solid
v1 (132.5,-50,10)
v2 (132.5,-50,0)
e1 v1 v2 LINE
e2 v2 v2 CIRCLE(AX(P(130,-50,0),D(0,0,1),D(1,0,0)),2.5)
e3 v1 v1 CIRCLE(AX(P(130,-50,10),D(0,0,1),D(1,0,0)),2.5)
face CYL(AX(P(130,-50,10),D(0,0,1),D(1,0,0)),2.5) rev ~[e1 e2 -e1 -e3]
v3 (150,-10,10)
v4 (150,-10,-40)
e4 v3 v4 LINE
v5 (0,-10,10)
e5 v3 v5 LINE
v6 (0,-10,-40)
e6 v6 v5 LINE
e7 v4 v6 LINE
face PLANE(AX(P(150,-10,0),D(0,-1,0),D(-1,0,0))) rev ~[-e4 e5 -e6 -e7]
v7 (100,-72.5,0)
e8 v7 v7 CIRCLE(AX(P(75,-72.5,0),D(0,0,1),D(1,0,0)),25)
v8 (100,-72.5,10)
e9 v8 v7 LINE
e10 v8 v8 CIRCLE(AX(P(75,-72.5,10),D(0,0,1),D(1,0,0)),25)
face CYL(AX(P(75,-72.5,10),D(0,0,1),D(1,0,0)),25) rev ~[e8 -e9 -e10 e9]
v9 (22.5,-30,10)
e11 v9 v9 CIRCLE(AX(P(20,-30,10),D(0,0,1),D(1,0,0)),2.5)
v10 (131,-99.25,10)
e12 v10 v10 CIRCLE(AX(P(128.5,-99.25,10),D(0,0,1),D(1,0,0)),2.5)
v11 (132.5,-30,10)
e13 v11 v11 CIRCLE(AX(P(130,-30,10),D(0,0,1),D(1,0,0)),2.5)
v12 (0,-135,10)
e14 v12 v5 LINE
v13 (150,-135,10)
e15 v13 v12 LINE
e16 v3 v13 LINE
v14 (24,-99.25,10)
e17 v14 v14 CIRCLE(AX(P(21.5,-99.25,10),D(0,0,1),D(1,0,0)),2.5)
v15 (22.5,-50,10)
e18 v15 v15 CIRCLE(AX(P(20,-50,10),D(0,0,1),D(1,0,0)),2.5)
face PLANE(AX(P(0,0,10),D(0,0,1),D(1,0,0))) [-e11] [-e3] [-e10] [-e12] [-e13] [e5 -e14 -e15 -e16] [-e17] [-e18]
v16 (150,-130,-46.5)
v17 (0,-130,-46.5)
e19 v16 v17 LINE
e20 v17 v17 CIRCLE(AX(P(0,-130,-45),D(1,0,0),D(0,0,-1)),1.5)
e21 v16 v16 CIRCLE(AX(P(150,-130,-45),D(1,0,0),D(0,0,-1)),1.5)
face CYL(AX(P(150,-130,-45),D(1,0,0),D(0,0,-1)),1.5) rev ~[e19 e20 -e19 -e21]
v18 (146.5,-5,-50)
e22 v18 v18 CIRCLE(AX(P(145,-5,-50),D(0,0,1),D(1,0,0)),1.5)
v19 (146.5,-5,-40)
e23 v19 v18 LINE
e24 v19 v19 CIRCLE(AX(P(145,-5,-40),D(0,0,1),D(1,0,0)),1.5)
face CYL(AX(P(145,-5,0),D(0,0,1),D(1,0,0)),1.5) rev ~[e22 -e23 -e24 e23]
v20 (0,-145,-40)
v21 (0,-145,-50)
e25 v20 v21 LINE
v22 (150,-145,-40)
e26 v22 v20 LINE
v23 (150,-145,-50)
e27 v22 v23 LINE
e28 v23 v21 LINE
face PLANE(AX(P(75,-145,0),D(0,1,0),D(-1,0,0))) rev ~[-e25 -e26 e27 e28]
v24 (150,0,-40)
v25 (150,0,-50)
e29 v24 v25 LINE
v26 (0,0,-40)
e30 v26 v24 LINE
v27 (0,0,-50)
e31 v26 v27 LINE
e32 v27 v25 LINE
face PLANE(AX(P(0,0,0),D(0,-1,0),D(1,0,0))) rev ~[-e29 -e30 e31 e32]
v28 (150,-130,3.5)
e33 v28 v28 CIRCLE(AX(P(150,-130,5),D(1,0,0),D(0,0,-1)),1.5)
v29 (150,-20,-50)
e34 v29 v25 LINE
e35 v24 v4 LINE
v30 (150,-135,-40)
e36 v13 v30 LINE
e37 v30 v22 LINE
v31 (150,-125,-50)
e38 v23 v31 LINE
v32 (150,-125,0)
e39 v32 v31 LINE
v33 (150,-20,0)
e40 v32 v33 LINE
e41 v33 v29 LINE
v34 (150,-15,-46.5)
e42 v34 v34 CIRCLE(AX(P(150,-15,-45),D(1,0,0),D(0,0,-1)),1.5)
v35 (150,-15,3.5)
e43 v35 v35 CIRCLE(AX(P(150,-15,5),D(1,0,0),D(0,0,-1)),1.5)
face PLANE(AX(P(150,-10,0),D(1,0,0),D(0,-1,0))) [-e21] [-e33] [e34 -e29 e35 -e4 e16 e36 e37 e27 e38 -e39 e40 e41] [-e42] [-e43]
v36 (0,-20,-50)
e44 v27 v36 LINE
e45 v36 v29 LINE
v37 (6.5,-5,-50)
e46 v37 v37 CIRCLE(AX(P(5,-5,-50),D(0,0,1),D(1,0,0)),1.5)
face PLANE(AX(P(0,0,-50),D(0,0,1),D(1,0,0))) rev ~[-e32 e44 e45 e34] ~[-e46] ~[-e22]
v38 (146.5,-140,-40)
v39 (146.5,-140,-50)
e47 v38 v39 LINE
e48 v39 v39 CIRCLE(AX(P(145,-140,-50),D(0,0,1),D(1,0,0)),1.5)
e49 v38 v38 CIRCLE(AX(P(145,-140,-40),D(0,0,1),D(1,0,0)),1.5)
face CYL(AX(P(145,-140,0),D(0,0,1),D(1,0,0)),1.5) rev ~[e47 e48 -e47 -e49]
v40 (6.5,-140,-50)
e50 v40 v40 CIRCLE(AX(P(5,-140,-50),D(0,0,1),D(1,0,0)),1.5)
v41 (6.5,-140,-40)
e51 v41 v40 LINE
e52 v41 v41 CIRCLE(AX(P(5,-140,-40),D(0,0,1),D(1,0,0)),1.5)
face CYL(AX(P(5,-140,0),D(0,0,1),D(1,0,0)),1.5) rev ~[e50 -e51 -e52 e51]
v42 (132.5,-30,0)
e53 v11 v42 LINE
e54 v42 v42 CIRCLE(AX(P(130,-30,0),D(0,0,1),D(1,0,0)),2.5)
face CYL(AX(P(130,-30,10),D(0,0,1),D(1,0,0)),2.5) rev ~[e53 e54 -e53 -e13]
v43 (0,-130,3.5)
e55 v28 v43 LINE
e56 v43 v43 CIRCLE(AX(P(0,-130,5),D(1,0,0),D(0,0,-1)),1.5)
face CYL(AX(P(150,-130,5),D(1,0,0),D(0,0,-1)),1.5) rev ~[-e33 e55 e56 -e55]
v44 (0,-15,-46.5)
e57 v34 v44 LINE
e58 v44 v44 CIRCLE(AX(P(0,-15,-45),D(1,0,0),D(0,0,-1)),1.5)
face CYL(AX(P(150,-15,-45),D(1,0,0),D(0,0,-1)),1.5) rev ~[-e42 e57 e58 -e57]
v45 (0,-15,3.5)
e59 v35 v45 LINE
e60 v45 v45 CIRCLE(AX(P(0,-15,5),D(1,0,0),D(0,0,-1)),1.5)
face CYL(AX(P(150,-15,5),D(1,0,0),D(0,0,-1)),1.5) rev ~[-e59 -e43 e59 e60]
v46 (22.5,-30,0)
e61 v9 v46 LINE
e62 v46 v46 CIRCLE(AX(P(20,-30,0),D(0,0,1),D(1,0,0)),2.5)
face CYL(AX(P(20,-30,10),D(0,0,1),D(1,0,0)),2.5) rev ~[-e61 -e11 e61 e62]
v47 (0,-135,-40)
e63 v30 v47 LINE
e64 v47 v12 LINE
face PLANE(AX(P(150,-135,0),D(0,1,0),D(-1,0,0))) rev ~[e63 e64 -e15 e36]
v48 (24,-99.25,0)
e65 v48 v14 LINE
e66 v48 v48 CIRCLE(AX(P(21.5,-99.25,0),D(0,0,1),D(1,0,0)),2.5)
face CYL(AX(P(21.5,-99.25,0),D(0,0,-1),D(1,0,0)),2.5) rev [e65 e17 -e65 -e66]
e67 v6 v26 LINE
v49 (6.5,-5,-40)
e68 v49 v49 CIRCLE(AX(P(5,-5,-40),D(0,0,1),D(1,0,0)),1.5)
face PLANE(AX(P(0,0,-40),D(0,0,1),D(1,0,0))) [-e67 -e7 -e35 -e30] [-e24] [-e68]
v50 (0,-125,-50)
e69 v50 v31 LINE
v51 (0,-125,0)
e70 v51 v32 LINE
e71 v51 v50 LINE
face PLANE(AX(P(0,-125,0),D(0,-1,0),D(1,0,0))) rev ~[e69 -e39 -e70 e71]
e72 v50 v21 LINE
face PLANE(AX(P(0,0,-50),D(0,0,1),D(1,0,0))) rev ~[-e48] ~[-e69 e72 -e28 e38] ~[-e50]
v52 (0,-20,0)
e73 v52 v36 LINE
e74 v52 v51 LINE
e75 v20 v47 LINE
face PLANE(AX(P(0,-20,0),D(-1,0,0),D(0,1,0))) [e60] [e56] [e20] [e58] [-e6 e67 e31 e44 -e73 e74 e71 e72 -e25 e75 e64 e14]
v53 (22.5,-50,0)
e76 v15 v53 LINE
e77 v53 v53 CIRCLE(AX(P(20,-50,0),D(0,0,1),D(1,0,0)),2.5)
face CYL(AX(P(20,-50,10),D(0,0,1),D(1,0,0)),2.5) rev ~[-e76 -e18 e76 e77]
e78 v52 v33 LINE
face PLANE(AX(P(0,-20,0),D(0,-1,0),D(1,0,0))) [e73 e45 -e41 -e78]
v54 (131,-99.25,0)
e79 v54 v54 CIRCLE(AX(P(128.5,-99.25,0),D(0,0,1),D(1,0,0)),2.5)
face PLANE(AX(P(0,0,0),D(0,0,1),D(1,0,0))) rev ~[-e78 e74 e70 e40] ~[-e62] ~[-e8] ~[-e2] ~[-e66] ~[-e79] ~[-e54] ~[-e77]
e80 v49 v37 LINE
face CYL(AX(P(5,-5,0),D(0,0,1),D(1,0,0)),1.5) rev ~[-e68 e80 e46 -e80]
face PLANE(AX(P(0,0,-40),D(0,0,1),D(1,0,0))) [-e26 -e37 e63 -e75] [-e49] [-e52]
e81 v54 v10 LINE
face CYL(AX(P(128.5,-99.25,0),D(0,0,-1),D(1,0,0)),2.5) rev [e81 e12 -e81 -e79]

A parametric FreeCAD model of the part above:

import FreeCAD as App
import Part
import Sketcher
from FreeCAD import Vector


def add_polygon(sketch, points):
    """Adds a closed chain of lines whose ends are joined by coincident constraints."""
    first, n = sketch.GeometryCount, len(points)
    for a, b in zip(points, points[1:] + points[:1]):
        sketch.addGeometry(Part.LineSegment(App.Vector(*a, 0), App.Vector(*b, 0)), False)
    for i in range(n):
        sketch.addConstraint(Sketcher.Constraint("Coincident", first + i, 2, first + (i + 1) % n, 1))

doc = App.newDocument("Part")
body = doc.addObject("PartDesign::Body", "Body")

# Sketch on XY plane
sketch1 = body.newObject("Sketcher::SketchObject", "Sketch")
sketch1.AttachmentSupport = (doc.getObject("XY_Plane"), [""])
sketch1.MapMode = "FlatFace"
add_polygon(sketch1, [(150, -10), (0, -10), (0, -135), (150, -135)])  # lines 0-3
sketch1.addGeometry(Part.Circle(Vector(128.5, -99.2, 0), Vector(0, 0, 1), 2.5), False)  # 4
sketch1.addGeometry(Part.Circle(Vector(21.5, -99.2, 0), Vector(0, 0, 1), 2.5), False)  # 5
sketch1.addConstraint([
    Sketcher.Constraint("Horizontal", 0),
    Sketcher.Constraint("Vertical", 1),
    Sketcher.Constraint("Horizontal", 2),
    Sketcher.Constraint("Vertical", 3),
    Sketcher.Constraint("Equal", 4, 5),
    Sketcher.Constraint("PointOnObject", 0, 2, -2),
    Sketcher.Constraint("Horizontal", 4, 3, 5, 3),
    Sketcher.Constraint("Diameter", 4, 5.0),
    Sketcher.Constraint("DistanceX", 0, 2, 0, 1, 150.0),
    Sketcher.Constraint("DistanceY", 0, 2, -1, 1, 10.0),
    Sketcher.Constraint("DistanceX", -1, 1, 5, 3, 21.5),
    Sketcher.Constraint("DistanceX", 4, 3, 2, 2, 21.5),
    Sketcher.Constraint("DistanceY", 1, 2, 1, 1, 125.0),
    Sketcher.Constraint("DistanceY", 4, 3, -1, 1, 99.25),
])
pad1 = body.newObject("PartDesign::Pad", "Pad")
pad1.Profile = sketch1
pad1.Length = 10

# Sketch on XY plane
sketch2 = body.newObject("Sketcher::SketchObject", "Sketch001")
sketch2.AttachmentSupport = (doc.getObject("XY_Plane"), [""])
sketch2.MapMode = "FlatFace"
add_polygon(sketch2, [(150, 0), (0, 0), (0, -20), (150, -20)])  # lines 0-3
add_polygon(sketch2, [(150, -125), (0, -125), (0, -145), (150, -145)])  # lines 4-7
sketch2.addConstraint([
    Sketcher.Constraint("Horizontal", 0),
    Sketcher.Constraint("Vertical", 1),
    Sketcher.Constraint("Horizontal", 2),
    Sketcher.Constraint("Vertical", 3),
    Sketcher.Constraint("Horizontal", 4),
    Sketcher.Constraint("Vertical", 5),
    Sketcher.Constraint("Horizontal", 6),
    Sketcher.Constraint("Vertical", 7),
    Sketcher.Constraint("Coincident", 0, 2, -1, 1),
    Sketcher.Constraint("PointOnObject", 4, 2, -2),
    Sketcher.Constraint("Vertical", 3, 2, 6, 2),
    Sketcher.Constraint("Equal", 3, 5),
    Sketcher.Constraint("DistanceX", 0, 2, 0, 1, 150.0),
    Sketcher.Constraint("DistanceY", 1, 2, 1, 1, 20.0),
    Sketcher.Constraint("DistanceY", 5, 2, -1, 1, 145.0),
])
pad2 = body.newObject("PartDesign::Pad", "Pad001")
pad2.Profile = sketch2
pad2.Length = 50
pad2.Reversed = True

# Sketch on XY plane
sketch3 = body.newObject("Sketcher::SketchObject", "Sketch002")
sketch3.AttachmentSupport = (doc.getObject("XY_Plane"), [""])
sketch3.MapMode = "FlatFace"
add_polygon(sketch3, [(150, 0), (0, 0), (0, -10), (150, -10)])  # lines 0-3
add_polygon(sketch3, [(150, -135), (0, -135), (0, -145), (150, -145)])  # lines 4-7
sketch3.addConstraint([
    Sketcher.Constraint("Horizontal", 0),
    Sketcher.Constraint("Vertical", 1),
    Sketcher.Constraint("Horizontal", 2),
    Sketcher.Constraint("Vertical", 3),
    Sketcher.Constraint("Horizontal", 4),
    Sketcher.Constraint("Vertical", 5),
    Sketcher.Constraint("Horizontal", 6),
    Sketcher.Constraint("Vertical", 7),
    Sketcher.Constraint("Coincident", 0, 2, -1, 1),
    Sketcher.Constraint("PointOnObject", 4, 2, -2),
    Sketcher.Constraint("Vertical", 3, 2, 6, 2),
    Sketcher.Constraint("Equal", 3, 5),
    Sketcher.Constraint("DistanceX", 0, 2, 0, 1, 150.0),
    Sketcher.Constraint("DistanceY", 1, 2, 1, 1, 10.0),
    Sketcher.Constraint("DistanceY", 5, 2, -1, 1, 145.0),
])
pocket1 = body.newObject("PartDesign::Pocket", "Pocket")
pocket1.Profile = sketch3
pocket1.Length = 40

# Sketch on XY plane
sketch4 = body.newObject("Sketcher::SketchObject", "Sketch003")
sketch4.AttachmentSupport = (doc.getObject("XY_Plane"), [""])
sketch4.MapMode = "FlatFace"
sketch4.AttachmentOffset = App.Placement(Vector(0, 0, 10), App.Rotation())
sketch4.addGeometry([
    Part.Circle(Vector(20, -30, 0), Vector(0, 0, 1), 2.5),  # 0
    Part.Circle(Vector(130, -30, 0), Vector(0, 0, 1), 2.5),  # 1
    Part.Circle(Vector(20, -50, 0), Vector(0, 0, 1), 2.5),  # 2
    Part.Circle(Vector(130, -50, 0), Vector(0, 0, 1), 2.5),  # 3
    Part.Circle(Vector(75, -72.5, 0), Vector(0, 0, 1), 25),  # 4
], False)
sketch4.addConstraint([
    Sketcher.Constraint("Equal", 0, 1),
    Sketcher.Constraint("Equal", 1, 2),
    Sketcher.Constraint("Equal", 2, 3),
    Sketcher.Constraint("Horizontal", 0, 3, 1, 3),
    Sketcher.Constraint("Horizontal", 2, 3, 3, 3),
    Sketcher.Constraint("Vertical", 0, 3, 2, 3),
    Sketcher.Constraint("Vertical", 1, 3, 3, 3),
    Sketcher.Constraint("Diameter", 0, 5.0),
    Sketcher.Constraint("Diameter", 4, 50.0),
    Sketcher.Constraint("DistanceX", -1, 1, 0, 3, 20.0),
    Sketcher.Constraint("DistanceY", 0, 3, -1, 1, 30.0),
    Sketcher.Constraint("DistanceY", 2, 3, -1, 1, 50.0),
    Sketcher.Constraint("DistanceX", -1, 1, 1, 3, 130.0),
    Sketcher.Constraint("DistanceX", -1, 1, 4, 3, 75.0),
    Sketcher.Constraint("DistanceY", 4, 3, -1, 1, 72.5),
])
pocket2 = body.newObject("PartDesign::Pocket", "Pocket001")
pocket2.Profile = sketch4
pocket2.Type = "ThroughAll"

# Sketch on XY plane
sketch5 = body.newObject("Sketcher::SketchObject", "Sketch004")
sketch5.AttachmentSupport = (doc.getObject("XY_Plane"), [""])
sketch5.MapMode = "FlatFace"
sketch5.addGeometry([
    Part.Circle(Vector(5, -5, 0), Vector(0, 0, 1), 1.5),
    Part.Circle(Vector(145, -5, 0), Vector(0, 0, 1), 1.5),
    Part.Circle(Vector(5, -140, 0), Vector(0, 0, 1), 1.5),
    Part.Circle(Vector(145, -140, 0), Vector(0, 0, 1), 1.5),
], False)
sketch5.addConstraint([
    Sketcher.Constraint("Equal", 0, 1),
    Sketcher.Constraint("Equal", 1, 2),
    Sketcher.Constraint("Equal", 2, 3),
    Sketcher.Constraint("Horizontal", 0, 3, 1, 3),
    Sketcher.Constraint("Horizontal", 2, 3, 3, 3),
    Sketcher.Constraint("Vertical", 0, 3, 2, 3),
    Sketcher.Constraint("Vertical", 1, 3, 3, 3),
    Sketcher.Constraint("Diameter", 0, 3.0),
    Sketcher.Constraint("DistanceX", -1, 1, 0, 3, 5.0),
    Sketcher.Constraint("DistanceY", 0, 3, -1, 1, 5.0),
    Sketcher.Constraint("DistanceX", -1, 1, 1, 3, 145.0),
    Sketcher.Constraint("DistanceY", 2, 3, -1, 1, 140.0),
])
pocket3 = body.newObject("PartDesign::Pocket", "Pocket002")
pocket3.Profile = sketch5
pocket3.Type = "ThroughAll"

# Sketch on YZ plane
sketch6 = body.newObject("Sketcher::SketchObject", "Sketch005")
sketch6.AttachmentSupport = (doc.getObject("YZ_Plane"), [""])
sketch6.MapMode = "FlatFace"
sketch6.AttachmentOffset = App.Placement(Vector(0, 0, 150), App.Rotation())
sketch6.addGeometry([
    Part.Circle(Vector(-15, -45, 0), Vector(0, 0, 1), 1.5),
    Part.Circle(Vector(-15, 5, 0), Vector(0, 0, 1), 1.5),
    Part.Circle(Vector(-130, 5, 0), Vector(0, 0, 1), 1.5),
    Part.Circle(Vector(-130, -45, 0), Vector(0, 0, 1), 1.5),
], False)
sketch6.addConstraint([
    Sketcher.Constraint("Equal", 0, 1),
    Sketcher.Constraint("Equal", 1, 2),
    Sketcher.Constraint("Equal", 2, 3),
    Sketcher.Constraint("Horizontal", 1, 3, 2, 3),
    Sketcher.Constraint("Horizontal", 0, 3, 3, 3),
    Sketcher.Constraint("Vertical", 0, 3, 1, 3),
    Sketcher.Constraint("Vertical", 2, 3, 3, 3),
    Sketcher.Constraint("Diameter", 0, 3.0),
    Sketcher.Constraint("DistanceY", -1, 1, 1, 3, 5.0),
    Sketcher.Constraint("DistanceX", 0, 3, -1, 1, 15.0),
    Sketcher.Constraint("DistanceY", 0, 3, -1, 1, 45.0),
    Sketcher.Constraint("DistanceX", 2, 3, -1, 1, 130.0),
])
pocket4 = body.newObject("PartDesign::Pocket", "Pocket003")
pocket4.Profile = sketch6
pocket4.Type = "ThroughAll"

doc.recompute()
